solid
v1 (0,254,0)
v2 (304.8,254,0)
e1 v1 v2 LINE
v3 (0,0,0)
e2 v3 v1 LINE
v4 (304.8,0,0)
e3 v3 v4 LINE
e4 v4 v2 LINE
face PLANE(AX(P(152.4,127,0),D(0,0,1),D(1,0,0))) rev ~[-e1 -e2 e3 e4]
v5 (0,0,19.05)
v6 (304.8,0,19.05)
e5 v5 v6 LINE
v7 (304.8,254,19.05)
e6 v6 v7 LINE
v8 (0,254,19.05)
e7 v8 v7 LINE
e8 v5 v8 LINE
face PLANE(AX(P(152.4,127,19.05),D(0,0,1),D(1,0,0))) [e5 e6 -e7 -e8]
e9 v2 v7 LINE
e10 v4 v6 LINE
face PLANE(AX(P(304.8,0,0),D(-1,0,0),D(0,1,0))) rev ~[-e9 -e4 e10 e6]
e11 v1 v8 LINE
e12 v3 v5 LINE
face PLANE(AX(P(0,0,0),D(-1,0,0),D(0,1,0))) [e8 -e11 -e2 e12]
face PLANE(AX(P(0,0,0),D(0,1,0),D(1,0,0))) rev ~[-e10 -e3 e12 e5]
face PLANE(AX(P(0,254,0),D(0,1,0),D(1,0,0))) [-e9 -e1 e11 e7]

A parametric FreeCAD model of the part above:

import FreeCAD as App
import Part
import Sketcher
from FreeCAD import Vector
Q = App.Units.Quantity

doc = App.newDocument("Part")
params = doc.addObject("Spreadsheet::Sheet", "Params")
for row, (alias, value) in enumerate([
    ("sketch1_width", "12 in"),
    ("sketch1_height", "10 in"),
    ("pad1_length", "0.75 in"),
], start=1):
    params.set(f"A{row}", alias)
    params.set(f"B{row}", "=" + value)
    params.setAlias(f"B{row}", alias)

body = doc.addObject("PartDesign::Body", "Body")

# Sketch on XY plane
sketch1 = doc.addObject("Sketcher::SketchObject", "Sketch")
body.addObject(sketch1)
sketch1.AttachmentSupport = (doc.XY_Plane, [""])
sketch1.MapMode = "FlatFace"
sketch1.addGeometry([
    Part.LineSegment(Vector(0, 254, 0), Vector(0, 0, 0)),
    Part.LineSegment(Vector(0, 0, 0), Vector(304.8, 0, 0)),
    Part.LineSegment(Vector(304.8, 0, 0), Vector(304.8, 254, 0)),
    Part.LineSegment(Vector(304.8, 254, 0), Vector(0, 254, 0)),
], False)
sketch1.addConstraint([
    Sketcher.Constraint("Coincident", 0, 2, 1, 1),
    Sketcher.Constraint("Coincident", 1, 2, 2, 1),
    Sketcher.Constraint("Coincident", 2, 2, 3, 1),
    Sketcher.Constraint("Coincident", 3, 2, 0, 1),
    Sketcher.Constraint("Vertical", 0),
    Sketcher.Constraint("Horizontal", 1),
    Sketcher.Constraint("Vertical", 2),
    Sketcher.Constraint("Horizontal", 3),
    Sketcher.Constraint("Coincident", 0, 2, -1, 1),
    Sketcher.Constraint("DistanceX", 1, 1, 1, 2, Q("12 in")),
    Sketcher.Constraint("DistanceY", 0, 2, 0, 1, Q("10 in")),
])
sketch1.setExpression("Constraints[9]", "Params.sketch1_width")
sketch1.setExpression("Constraints[10]", "Params.sketch1_height")
pad1 = doc.addObject("PartDesign::Pad", "Pad")
body.addObject(pad1)
pad1.Profile = sketch1
pad1.setExpression("Length", "Params.pad1_length")

doc.recompute()
